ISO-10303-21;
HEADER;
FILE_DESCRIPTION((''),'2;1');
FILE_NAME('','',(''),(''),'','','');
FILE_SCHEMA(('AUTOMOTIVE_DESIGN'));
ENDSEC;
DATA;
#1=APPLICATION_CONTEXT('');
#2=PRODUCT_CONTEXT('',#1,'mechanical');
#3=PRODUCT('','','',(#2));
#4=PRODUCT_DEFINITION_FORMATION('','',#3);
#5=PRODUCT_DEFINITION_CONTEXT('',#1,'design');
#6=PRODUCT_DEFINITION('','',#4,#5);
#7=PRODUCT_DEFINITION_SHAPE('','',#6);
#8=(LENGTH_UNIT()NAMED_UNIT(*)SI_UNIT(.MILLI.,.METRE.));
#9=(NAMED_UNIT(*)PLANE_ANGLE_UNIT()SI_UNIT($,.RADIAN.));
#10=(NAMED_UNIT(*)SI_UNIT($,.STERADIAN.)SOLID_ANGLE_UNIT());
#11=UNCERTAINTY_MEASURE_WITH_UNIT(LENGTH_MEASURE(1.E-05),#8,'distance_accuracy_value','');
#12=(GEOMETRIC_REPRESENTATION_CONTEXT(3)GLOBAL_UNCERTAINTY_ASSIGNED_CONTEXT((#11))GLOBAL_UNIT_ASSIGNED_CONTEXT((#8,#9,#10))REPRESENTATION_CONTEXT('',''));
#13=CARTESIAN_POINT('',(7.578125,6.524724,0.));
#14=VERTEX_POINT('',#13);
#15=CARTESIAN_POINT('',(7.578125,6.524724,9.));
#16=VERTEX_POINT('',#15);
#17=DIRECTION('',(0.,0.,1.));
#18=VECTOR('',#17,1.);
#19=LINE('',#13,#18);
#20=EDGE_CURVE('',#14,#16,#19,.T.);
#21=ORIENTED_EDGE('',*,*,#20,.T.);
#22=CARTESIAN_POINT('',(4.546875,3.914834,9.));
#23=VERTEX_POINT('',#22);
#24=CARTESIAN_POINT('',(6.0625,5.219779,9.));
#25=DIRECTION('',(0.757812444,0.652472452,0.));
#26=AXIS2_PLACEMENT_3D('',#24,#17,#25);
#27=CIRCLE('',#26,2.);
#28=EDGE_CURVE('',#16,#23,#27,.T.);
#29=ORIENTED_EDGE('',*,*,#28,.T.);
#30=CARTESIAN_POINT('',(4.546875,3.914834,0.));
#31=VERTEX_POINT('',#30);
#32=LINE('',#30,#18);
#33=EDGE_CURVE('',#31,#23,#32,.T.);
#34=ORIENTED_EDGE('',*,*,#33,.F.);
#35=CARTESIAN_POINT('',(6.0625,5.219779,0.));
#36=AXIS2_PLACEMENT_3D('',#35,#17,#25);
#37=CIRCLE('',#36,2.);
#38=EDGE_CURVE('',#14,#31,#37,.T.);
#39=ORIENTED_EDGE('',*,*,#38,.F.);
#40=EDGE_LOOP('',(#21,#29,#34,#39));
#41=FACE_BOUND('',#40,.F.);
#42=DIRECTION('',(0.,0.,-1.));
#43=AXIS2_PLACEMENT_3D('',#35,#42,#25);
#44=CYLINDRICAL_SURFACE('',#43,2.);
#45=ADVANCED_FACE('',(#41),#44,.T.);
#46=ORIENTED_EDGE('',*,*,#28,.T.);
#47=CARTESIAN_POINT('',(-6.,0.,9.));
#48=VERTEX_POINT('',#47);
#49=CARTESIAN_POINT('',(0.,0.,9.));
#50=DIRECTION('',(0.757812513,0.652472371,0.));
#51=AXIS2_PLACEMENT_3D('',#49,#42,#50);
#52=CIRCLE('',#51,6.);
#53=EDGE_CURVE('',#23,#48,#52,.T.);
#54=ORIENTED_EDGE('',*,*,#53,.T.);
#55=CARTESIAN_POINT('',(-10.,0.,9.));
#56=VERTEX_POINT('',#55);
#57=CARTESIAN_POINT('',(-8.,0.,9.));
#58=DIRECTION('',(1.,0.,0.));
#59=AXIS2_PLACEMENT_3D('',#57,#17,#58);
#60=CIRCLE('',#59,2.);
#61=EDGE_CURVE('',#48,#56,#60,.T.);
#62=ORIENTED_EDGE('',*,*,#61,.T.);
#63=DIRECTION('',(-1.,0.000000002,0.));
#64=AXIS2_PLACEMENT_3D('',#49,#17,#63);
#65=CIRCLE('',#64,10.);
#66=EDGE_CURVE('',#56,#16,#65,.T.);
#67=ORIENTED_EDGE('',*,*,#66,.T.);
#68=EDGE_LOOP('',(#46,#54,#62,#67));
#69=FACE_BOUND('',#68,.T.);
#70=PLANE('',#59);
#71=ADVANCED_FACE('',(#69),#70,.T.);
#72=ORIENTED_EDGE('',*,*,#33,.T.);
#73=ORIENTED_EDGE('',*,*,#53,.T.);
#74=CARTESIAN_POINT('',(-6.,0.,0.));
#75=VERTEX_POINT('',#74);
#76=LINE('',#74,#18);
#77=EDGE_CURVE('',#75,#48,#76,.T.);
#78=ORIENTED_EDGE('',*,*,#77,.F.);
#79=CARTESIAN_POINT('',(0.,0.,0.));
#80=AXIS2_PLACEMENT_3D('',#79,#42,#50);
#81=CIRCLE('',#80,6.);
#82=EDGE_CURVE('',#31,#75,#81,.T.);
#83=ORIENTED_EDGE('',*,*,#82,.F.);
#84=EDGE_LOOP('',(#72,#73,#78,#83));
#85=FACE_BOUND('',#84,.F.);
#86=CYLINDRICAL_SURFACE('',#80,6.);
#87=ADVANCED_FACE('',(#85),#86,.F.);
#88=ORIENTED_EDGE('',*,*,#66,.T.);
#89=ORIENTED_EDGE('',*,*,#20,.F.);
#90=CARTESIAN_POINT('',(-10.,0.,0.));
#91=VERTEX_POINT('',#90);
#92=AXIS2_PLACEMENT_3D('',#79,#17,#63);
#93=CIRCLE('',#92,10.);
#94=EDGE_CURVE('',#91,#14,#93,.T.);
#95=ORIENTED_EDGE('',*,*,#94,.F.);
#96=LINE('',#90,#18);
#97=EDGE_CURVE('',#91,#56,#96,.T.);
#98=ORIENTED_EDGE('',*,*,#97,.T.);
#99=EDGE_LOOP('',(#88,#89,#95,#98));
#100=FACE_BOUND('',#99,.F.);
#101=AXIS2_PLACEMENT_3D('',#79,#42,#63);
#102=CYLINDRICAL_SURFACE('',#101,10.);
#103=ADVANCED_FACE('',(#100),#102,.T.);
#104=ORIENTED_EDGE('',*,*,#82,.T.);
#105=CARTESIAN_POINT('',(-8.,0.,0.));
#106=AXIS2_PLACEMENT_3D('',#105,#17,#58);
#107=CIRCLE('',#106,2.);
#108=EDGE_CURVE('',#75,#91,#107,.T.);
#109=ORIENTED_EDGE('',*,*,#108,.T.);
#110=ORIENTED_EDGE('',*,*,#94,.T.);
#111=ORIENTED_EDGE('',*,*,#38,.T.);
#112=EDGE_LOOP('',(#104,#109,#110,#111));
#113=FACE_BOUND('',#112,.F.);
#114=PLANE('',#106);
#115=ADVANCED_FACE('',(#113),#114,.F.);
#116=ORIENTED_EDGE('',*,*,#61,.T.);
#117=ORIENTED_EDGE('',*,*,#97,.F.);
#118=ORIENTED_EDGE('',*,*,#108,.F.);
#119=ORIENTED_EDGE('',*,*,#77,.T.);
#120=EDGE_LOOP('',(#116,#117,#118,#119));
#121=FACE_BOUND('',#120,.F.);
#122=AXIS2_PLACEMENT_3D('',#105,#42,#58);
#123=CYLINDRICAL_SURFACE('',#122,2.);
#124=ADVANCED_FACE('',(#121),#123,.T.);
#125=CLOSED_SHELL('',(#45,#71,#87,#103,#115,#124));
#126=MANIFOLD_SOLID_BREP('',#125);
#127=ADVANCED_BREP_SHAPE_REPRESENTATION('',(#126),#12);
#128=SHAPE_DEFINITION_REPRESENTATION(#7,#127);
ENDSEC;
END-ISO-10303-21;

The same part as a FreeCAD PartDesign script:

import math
import FreeCAD as App
import Part
import Sketcher
Q = App.Units.Quantity

doc = App.newDocument("Part")
body = doc.addObject("PartDesign::Body", "Body")

sketch1 = body.newObject("Sketcher::SketchObject", "Sketch")
sketch1.AttachmentSupport = (doc.getObject("XY_Plane"), [""])
sketch1.MapMode = "FlatFace"
sketch1.addGeometry([
    Part.ArcOfCircle(Part.Circle(App.Vector(-8, 0, 0), App.Vector(0, 0, 1), 2), math.radians(0), math.radians(180)),
    Part.ArcOfCircle(Part.Circle(App.Vector(0, 0, 0), App.Vector(0, 0, 1), 10), math.radians(180), math.radians(400.728271)),
    Part.ArcOfCircle(Part.Circle(App.Vector(6.0625, 5.219779, 0), App.Vector(0, 0, 1), 2), math.radians(40.728275), math.radians(220.728275)),
    Part.ArcOfCircle(Part.Circle(App.Vector(0, 0, 0), App.Vector(0, 0, 1), 6), math.radians(179.999998), math.radians(400.728268)),
], False)
sketch1.addConstraint([
    Sketcher.Constraint("Tangent", 0, 2, 1, 1),
    Sketcher.Constraint("Tangent", 1, 2, 2, 1),
    Sketcher.Constraint("Tangent", 2, 2, 3, 2),
    Sketcher.Constraint("Tangent", 3, 1, 0, 1),
    Sketcher.Constraint("Coincident", 1, 3, -1, 1),
    Sketcher.Constraint("Coincident", 3, 3, -1, 1),
    Sketcher.Constraint("PointOnObject", 0, 3, -1),
    Sketcher.Constraint("Radius", 0, Q("2 mm")),
    Sketcher.Constraint("Radius", 1, Q("10 mm")),
    Sketcher.Constraint("DistanceX", -1, 1, 2, 3, Q("6.0625 mm")),
])
pad1 = body.newObject("PartDesign::Pad", "Pad")
pad1.Profile = sketch1
pad1.Length = 9

doc.recompute()
